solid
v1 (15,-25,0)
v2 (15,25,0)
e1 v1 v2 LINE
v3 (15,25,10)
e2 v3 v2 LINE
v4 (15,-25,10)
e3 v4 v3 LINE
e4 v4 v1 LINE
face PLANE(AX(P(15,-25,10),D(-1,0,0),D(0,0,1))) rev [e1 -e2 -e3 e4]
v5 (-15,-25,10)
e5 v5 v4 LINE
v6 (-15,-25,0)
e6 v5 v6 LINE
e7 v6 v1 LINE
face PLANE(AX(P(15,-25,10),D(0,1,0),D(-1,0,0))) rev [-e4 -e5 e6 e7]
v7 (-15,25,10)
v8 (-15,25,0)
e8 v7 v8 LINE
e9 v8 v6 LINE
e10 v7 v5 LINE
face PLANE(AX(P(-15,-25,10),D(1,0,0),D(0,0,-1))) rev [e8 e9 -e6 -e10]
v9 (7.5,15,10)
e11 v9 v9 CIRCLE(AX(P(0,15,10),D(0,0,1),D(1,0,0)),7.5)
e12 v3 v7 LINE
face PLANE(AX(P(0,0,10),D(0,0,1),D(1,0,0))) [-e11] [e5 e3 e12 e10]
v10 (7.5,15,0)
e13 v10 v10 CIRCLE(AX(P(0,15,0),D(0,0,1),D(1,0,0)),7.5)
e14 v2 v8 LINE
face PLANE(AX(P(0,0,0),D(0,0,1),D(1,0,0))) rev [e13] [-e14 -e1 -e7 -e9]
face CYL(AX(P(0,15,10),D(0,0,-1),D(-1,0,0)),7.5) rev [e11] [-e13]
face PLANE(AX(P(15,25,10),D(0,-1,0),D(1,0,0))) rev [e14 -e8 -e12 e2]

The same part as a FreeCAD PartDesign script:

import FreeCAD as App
import Part
import Sketcher
from FreeCAD import Vector
Q = App.Units.Quantity

doc = App.newDocument("Part")
body = doc.addObject("PartDesign::Body", "Body")

sketch1 = doc.addObject("Sketcher::SketchObject", "Sketch")
body.addObject(sketch1)
sketch1.AttachmentSupport = (doc.XY_Plane, [""])
sketch1.MapMode = "FlatFace"
sketch1.addGeometry([
    Part.LineSegment(Vector(-15, 25, 0), Vector(-15, -25, 0)),
    Part.LineSegment(Vector(-15, -25, 0), Vector(15, -25, 0)),
    Part.LineSegment(Vector(15, -25, 0), Vector(15, 25, 0)),
    Part.LineSegment(Vector(15, 25, 0), Vector(-15, 25, 0)),
    Part.Circle(Vector(0, 15, 0), Vector(0, 0, 1), 7.5),
], False)
sketch1.addConstraint([
    Sketcher.Constraint("Coincident", 0, 2, 1, 1),
    Sketcher.Constraint("Coincident", 1, 2, 2, 1),
    Sketcher.Constraint("Coincident", 2, 2, 3, 1),
    Sketcher.Constraint("Coincident", 3, 2, 0, 1),
    Sketcher.Constraint("Vertical", 0),
    Sketcher.Constraint("Horizontal", 1),
    Sketcher.Constraint("Vertical", 2),
    Sketcher.Constraint("Horizontal", 3),
    Sketcher.Constraint("Symmetric", 0, 2, 2, 2, -1, 1),
    Sketcher.Constraint("PointOnObject", 4, 3, -2),
    Sketcher.Constraint("Diameter", 4, Q("15 mm")),
    Sketcher.Constraint("DistanceX", 1, 1, 1, 2, Q("30 mm")),
    Sketcher.Constraint("DistanceY", 0, 2, 0, 1, Q("50 mm")),
    Sketcher.Constraint("DistanceY", -1, 1, 4, 3, Q("15 mm")),
])
pad1 = doc.addObject("PartDesign::Pad", "Pad")
body.addObject(pad1)
pad1.Profile = sketch1
pad1.Length = 10

doc.recompute()
